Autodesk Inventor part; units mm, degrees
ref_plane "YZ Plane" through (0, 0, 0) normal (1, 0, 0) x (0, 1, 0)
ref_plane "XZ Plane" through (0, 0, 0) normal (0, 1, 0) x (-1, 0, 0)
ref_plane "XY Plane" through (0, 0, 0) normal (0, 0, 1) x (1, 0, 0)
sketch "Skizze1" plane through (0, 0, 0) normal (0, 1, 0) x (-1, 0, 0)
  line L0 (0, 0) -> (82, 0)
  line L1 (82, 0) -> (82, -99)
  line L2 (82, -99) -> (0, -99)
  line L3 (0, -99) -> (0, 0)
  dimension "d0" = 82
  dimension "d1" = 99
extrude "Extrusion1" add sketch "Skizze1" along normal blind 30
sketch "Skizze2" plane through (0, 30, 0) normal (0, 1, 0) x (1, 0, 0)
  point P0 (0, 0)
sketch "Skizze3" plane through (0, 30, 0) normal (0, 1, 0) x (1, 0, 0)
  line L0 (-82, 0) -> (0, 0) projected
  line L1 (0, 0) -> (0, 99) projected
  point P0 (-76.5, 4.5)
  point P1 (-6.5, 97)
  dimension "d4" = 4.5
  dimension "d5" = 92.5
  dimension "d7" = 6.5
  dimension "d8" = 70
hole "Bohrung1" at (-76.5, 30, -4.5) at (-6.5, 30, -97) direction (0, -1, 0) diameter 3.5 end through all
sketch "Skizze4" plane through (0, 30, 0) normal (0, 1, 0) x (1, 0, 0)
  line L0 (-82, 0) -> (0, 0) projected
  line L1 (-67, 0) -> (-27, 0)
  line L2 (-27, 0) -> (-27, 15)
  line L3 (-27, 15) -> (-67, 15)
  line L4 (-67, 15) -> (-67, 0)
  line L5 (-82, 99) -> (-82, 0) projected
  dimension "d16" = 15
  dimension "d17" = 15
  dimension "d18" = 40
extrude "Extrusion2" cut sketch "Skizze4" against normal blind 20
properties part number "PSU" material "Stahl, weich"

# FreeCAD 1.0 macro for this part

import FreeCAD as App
import Part
import Sketcher

doc = App.newDocument("Part")
body = doc.addObject("PartDesign::Body", "Body")

# Sketch on XZ plane
sketch1 = body.newObject("Sketcher::SketchObject", "Sketch")
sketch1.AttachmentSupport = (doc.getObject("XZ_Plane"), [""])
sketch1.MapMode = "FlatFace"
sketch1.addGeometry([
    Part.LineSegment(App.Vector(-82, 0, 0), App.Vector(0, 0, 0)),
    Part.LineSegment(App.Vector(0, 0, 0), App.Vector(0, -99, 0)),
    Part.LineSegment(App.Vector(0, -99, 0), App.Vector(-82, -99, 0)),
    Part.LineSegment(App.Vector(-82, -99, 0), App.Vector(-82, 0, 0)),
], False)
sketch1.addConstraint([
    Sketcher.Constraint("Coincident", 0, 2, 1, 1),
    Sketcher.Constraint("Coincident", 1, 2, 2, 1),
    Sketcher.Constraint("Coincident", 2, 2, 3, 1),
    Sketcher.Constraint("Coincident", 3, 2, 0, 1),
    Sketcher.Constraint("Horizontal", 0),
    Sketcher.Constraint("Vertical", 1),
    Sketcher.Constraint("Horizontal", 2),
    Sketcher.Constraint("Vertical", 3),
    Sketcher.Constraint("Coincident", 0, 2, -1, 1),
    Sketcher.Constraint("DistanceX", 0, 1, 0, 2, 82.0),
    Sketcher.Constraint("DistanceY", 1, 2, 1, 1, 99.0),
])
pad1 = body.newObject("PartDesign::Pad", "Pad")
pad1.Profile = sketch1
pad1.Length = 30
pad1.Reversed = True

# Sketch on XZ plane
sketch2 = body.newObject("Sketcher::SketchObject", "Sketch001")
sketch2.AttachmentSupport = (doc.getObject("XZ_Plane"), [""])
sketch2.MapMode = "FlatFace"
sketch2.AttachmentOffset = App.Placement(App.Vector(0, 0, -30), App.Rotation())
sketch2.addGeometry([
    Part.Circle(App.Vector(-76.5, -4.5, 0), App.Vector(0, 0, 1), 1.8),
    Part.Circle(App.Vector(-6.5, -97, 0), App.Vector(0, 0, 1), 1.8),
], False)
sketch2.addConstraint([
    Sketcher.Constraint("Equal", 0, 1),
    Sketcher.Constraint("Diameter", 0, 3.5),
    Sketcher.Constraint("DistanceY", 1, 3, -1, 1, 97.0),
    Sketcher.Constraint("DistanceX", 0, 3, 1, 3, 70.0),
    Sketcher.Constraint("DistanceX", 0, 3, -1, 1, 76.5),
    Sketcher.Constraint("DistanceY", 0, 3, -1, 1, 4.5),
])
doc.recompute()
hole = body.newObject("PartDesign::Hole", "Hole")
hole.Profile = sketch2
hole.ThreadType = "None"
hole.Diameter = 3.5
hole.DepthType = "ThroughAll"
hole.Reversed = True

# Sketch on XZ plane
sketch3 = body.newObject("Sketcher::SketchObject", "Sketch002")
sketch3.AttachmentSupport = (doc.getObject("XZ_Plane"), [""])
sketch3.MapMode = "FlatFace"
sketch3.AttachmentOffset = App.Placement(App.Vector(0, 0, -30), App.Rotation())
sketch3.addGeometry([
    Part.LineSegment(App.Vector(-67, -15, 0), App.Vector(-67, 0, 0)),
    Part.LineSegment(App.Vector(-67, 0, 0), App.Vector(-27, 0, 0)),
    Part.LineSegment(App.Vector(-27, 0, 0), App.Vector(-27, -15, 0)),
    Part.LineSegment(App.Vector(-27, -15, 0), App.Vector(-67, -15, 0)),
], False)
sketch3.addConstraint([
    Sketcher.Constraint("Coincident", 0, 2, 1, 1),
    Sketcher.Constraint("Coincident", 1, 2, 2, 1),
    Sketcher.Constraint("Coincident", 2, 2, 3, 1),
    Sketcher.Constraint("Coincident", 3, 2, 0, 1),
    Sketcher.Constraint("Vertical", 0),
    Sketcher.Constraint("Horizontal", 1),
    Sketcher.Constraint("Vertical", 2),
    Sketcher.Constraint("Horizontal", 3),
    Sketcher.Constraint("PointOnObject", 0, 2, -1),
    Sketcher.Constraint("DistanceX", 1, 1, 1, 2, 40.0),
    Sketcher.Constraint("DistanceY", 0, 1, 0, 2, 15.0),
    Sketcher.Constraint("DistanceX", 0, 2, -1, 1, 67.0),
])
pocket1 = body.newObject("PartDesign::Pocket", "Pocket")
pocket1.Profile = sketch3
pocket1.Length = 20
pocket1.Reversed = True

doc.recompute()
